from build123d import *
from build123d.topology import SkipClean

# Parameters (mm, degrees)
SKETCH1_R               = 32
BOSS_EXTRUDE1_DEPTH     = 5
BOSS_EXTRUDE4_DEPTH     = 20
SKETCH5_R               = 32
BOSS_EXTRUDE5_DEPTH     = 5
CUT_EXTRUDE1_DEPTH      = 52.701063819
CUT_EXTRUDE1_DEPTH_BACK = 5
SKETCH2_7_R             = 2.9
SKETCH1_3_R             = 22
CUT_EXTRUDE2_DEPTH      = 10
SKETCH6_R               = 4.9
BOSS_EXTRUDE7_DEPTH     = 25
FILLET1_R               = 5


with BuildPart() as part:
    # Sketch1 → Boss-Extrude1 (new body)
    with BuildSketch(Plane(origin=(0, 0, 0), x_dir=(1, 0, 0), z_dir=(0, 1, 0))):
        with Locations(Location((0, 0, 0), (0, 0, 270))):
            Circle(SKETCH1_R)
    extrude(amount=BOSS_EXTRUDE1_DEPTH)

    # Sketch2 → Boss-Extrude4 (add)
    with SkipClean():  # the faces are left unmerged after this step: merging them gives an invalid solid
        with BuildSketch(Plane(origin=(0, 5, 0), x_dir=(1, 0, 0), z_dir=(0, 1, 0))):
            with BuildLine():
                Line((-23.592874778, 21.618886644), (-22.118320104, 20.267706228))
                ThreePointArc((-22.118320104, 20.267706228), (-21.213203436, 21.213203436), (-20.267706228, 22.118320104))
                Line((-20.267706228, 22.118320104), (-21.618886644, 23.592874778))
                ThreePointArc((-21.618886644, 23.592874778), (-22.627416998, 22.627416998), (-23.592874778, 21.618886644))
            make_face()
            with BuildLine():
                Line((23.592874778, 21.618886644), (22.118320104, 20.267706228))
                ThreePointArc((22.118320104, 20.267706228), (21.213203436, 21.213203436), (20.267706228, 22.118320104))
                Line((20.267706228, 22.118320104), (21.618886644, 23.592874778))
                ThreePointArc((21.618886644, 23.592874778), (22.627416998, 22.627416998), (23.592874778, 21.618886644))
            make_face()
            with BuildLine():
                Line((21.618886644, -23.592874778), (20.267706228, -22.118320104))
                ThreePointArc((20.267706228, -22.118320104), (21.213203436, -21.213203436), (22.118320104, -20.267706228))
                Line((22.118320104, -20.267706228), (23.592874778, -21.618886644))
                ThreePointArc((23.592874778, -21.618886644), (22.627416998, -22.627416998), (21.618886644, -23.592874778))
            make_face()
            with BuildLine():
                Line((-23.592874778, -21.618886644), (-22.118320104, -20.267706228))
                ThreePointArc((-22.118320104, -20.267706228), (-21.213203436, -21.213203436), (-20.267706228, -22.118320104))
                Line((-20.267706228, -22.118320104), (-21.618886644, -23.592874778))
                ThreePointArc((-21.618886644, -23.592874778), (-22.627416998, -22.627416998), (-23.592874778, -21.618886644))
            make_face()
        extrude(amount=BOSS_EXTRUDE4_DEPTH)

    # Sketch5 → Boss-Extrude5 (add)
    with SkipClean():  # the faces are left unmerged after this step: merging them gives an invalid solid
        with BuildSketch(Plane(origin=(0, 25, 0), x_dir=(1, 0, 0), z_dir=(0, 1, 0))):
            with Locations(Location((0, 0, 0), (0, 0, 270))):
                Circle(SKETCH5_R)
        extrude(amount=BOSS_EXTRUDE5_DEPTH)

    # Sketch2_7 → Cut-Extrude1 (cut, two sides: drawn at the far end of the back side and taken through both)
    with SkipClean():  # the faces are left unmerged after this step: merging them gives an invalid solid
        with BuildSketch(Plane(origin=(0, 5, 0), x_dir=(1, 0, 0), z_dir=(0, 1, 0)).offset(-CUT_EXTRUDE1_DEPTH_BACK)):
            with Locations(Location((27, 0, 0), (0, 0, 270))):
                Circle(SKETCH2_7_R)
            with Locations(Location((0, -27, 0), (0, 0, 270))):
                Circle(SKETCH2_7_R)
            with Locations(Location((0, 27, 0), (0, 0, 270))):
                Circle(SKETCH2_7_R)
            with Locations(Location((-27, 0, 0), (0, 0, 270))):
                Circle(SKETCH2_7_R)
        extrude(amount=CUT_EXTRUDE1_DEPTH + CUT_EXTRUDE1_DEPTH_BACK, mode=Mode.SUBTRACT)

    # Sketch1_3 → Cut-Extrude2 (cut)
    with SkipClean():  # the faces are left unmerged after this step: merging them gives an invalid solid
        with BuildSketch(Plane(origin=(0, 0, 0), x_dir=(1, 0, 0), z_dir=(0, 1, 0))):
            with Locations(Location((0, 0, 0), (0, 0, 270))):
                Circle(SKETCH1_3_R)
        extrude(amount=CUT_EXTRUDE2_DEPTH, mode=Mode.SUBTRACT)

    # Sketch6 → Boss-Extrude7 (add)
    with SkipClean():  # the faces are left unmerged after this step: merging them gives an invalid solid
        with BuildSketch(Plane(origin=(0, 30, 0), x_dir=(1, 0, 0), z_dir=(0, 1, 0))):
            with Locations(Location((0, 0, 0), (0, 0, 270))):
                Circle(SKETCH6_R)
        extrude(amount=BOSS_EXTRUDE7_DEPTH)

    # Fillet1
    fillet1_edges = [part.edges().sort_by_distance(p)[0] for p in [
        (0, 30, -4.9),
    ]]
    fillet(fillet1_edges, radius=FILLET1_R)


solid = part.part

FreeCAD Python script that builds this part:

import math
import FreeCAD as App
import Part
import Sketcher
from FreeCAD import Vector
Q = App.Units.Quantity


def edges_at(feature, points):
    """Names of the edges that pass closest to the given points."""
    edges = feature.Shape.Edges
    near = lambda p: min(range(len(edges)), key=lambda i: edges[i].distToShape(Part.Vertex(*p))[0])
    return sorted({f"Edge{near(p) + 1}" for p in points})

doc = App.newDocument("Part")
body = doc.addObject("PartDesign::Body", "Body")

sketch1 = doc.addObject("Sketcher::SketchObject", "Sketch")
body.addObject(sketch1)
sketch1.AttachmentSupport = (doc.XZ_Plane, [""])
sketch1.MapMode = "FlatFace"
sketch1.addGeometry(Part.Circle(Vector(0, 0, 0), Vector(0, 0, 1), 32), False)
sketch1.addConstraint([
    Sketcher.Constraint("Coincident", 0, 3, -1, 1),
    Sketcher.Constraint("Diameter", 0, 64.0),
])
pad1 = doc.addObject("PartDesign::Pad", "Pad")
body.addObject(pad1)
pad1.Profile = sketch1
pad1.Length = 5
pad1.Reversed = True

sketch2 = doc.addObject("Sketcher::SketchObject", "Sketch001")
body.addObject(sketch2)
sketch2.AttachmentSupport = (doc.XZ_Plane, [""])
sketch2.MapMode = "FlatFace"
sketch2.AttachmentOffset = App.Placement(Vector(0, 0, -5), App.Rotation())
sketch2.addGeometry([
    Part.LineSegment(Vector(-23.6, -21.6, 0), Vector(-22.1, -20.3, 0)),
    Part.ArcOfCircle(Part.Circle(Vector(0, 0, 0), Vector(0, 0, 1), 30), math.radians(-137.5), math.radians(-132.5)),
    Part.LineSegment(Vector(-20.3, -22.1, 0), Vector(-21.6, -23.6, 0)),
    Part.ArcOfCircle(Part.Circle(Vector(0, 0, 0), Vector(0, 0, 1), 32), math.radians(-137.5), math.radians(-132.5)),
    Part.LineSegment(Vector(22.1, -20.3, 0), Vector(23.6, -21.6, 0)),
    Part.ArcOfCircle(Part.Circle(Vector(0, 0, 0), Vector(0, 0, 1), 32), math.radians(-47.5), math.radians(-42.5)),
    Part.LineSegment(Vector(21.6, -23.6, 0), Vector(20.3, -22.1, 0)),
    Part.ArcOfCircle(Part.Circle(Vector(0, 0, 0), Vector(0, 0, 1), 30), math.radians(-47.5), math.radians(-42.5)),
    Part.LineSegment(Vector(20.3, 22.1, 0), Vector(21.6, 23.6, 0)),
    Part.ArcOfCircle(Part.Circle(Vector(0, 0, 0), Vector(0, 0, 1), 32), math.radians(42.5), math.radians(47.5)),
    Part.LineSegment(Vector(23.6, 21.6, 0), Vector(22.1, 20.3, 0)),
    Part.ArcOfCircle(Part.Circle(Vector(0, 0, 0), Vector(0, 0, 1), 30), math.radians(42.5), math.radians(47.5)),
    Part.LineSegment(Vector(-22.1, 20.3, 0), Vector(-23.6, 21.6, 0)),
    Part.ArcOfCircle(Part.Circle(Vector(0, 0, 0), Vector(0, 0, 1), 32), math.radians(132.5), math.radians(137.5)),
    Part.LineSegment(Vector(-21.6, 23.6, 0), Vector(-20.3, 22.1, 0)),
    Part.ArcOfCircle(Part.Circle(Vector(0, 0, 0), Vector(0, 0, 1), 30), math.radians(132.5), math.radians(137.5)),
], False)
sketch2.addConstraint([
    Sketcher.Constraint("Coincident", 0, 2, 1, 1),
    Sketcher.Constraint("Coincident", 1, 2, 2, 1),
    Sketcher.Constraint("Coincident", 2, 2, 3, 2),
    Sketcher.Constraint("Coincident", 3, 1, 0, 1),
    Sketcher.Constraint("Coincident", 4, 2, 5, 2),
    Sketcher.Constraint("Coincident", 5, 1, 6, 1),
    Sketcher.Constraint("Coincident", 6, 2, 7, 1),
    Sketcher.Constraint("Coincident", 7, 2, 4, 1),
    Sketcher.Constraint("Coincident", 8, 2, 9, 2),
    Sketcher.Constraint("Coincident", 9, 1, 10, 1),
    Sketcher.Constraint("Coincident", 10, 2, 11, 1),
    Sketcher.Constraint("Coincident", 11, 2, 8, 1),
    Sketcher.Constraint("Coincident", 12, 2, 13, 2),
    Sketcher.Constraint("Coincident", 13, 1, 14, 1),
    Sketcher.Constraint("Coincident", 14, 2, 15, 1),
    Sketcher.Constraint("Coincident", 15, 2, 12, 1),
    Sketcher.Constraint("Coincident", 1, 3, -1, 1),
    Sketcher.Constraint("Coincident", 3, 3, -1, 1),
    Sketcher.Constraint("Coincident", 5, 3, -1, 1),
    Sketcher.Constraint("Coincident", 7, 3, -1, 1),
    Sketcher.Constraint("Coincident", 9, 3, -1, 1),
    Sketcher.Constraint("Coincident", 11, 3, -1, 1),
    Sketcher.Constraint("Coincident", 13, 3, -1, 1),
    Sketcher.Constraint("Coincident", 15, 3, -1, 1),
    Sketcher.Constraint("Equal", 3, 5),
    Sketcher.Constraint("Equal", 1, 7),
    Sketcher.Constraint("Equal", 5, 9),
    Sketcher.Constraint("Equal", 7, 11),
    Sketcher.Constraint("Equal", 9, 13),
    Sketcher.Constraint("Equal", 11, 15),
    Sketcher.Constraint("Perpendicular", 2, 4),
    Sketcher.Constraint("Perpendicular", 0, 6),
    Sketcher.Constraint("Perpendicular", 4, 8),
    Sketcher.Constraint("Perpendicular", 6, 10),
    Sketcher.Constraint("Perpendicular", 8, 12),
    Sketcher.Constraint("Perpendicular", 10, 14),
    Sketcher.Constraint("Horizontal", 3, 1, 4, 2),
    Sketcher.Constraint("Horizontal", 2, 2, 5, 1),
    Sketcher.Constraint("Horizontal", 1, 2, 6, 2),
    Sketcher.Constraint("Horizontal", 9, 1, 12, 2),
    Sketcher.Constraint("Horizontal", 8, 2, 13, 1),
    Sketcher.Constraint("Vertical", 5, 1, 8, 2),
    Sketcher.Constraint("Vertical", 4, 2, 9, 1),
    Sketcher.Constraint("Radius", 1, 29.999999),
    Sketcher.Constraint("Radius", 3, 32.0),
    Sketcher.Constraint("Angle", 0, Q("42.5 deg")),
    Sketcher.Constraint("DistanceX", 0, 2, -1, 1, 22.11832),
    Sketcher.Constraint("DistanceY", 1, 2, -1, 1, 22.11832),
])
pad2 = doc.addObject("PartDesign::Pad", "Pad001")
body.addObject(pad2)
pad2.Profile = sketch2
pad2.Length = 20
pad2.Reversed = True

sketch3 = doc.addObject("Sketcher::SketchObject", "Sketch002")
body.addObject(sketch3)
sketch3.AttachmentSupport = (doc.XZ_Plane, [""])
sketch3.MapMode = "FlatFace"
sketch3.AttachmentOffset = App.Placement(Vector(0, 0, -25), App.Rotation())
sketch3.addGeometry(Part.Circle(Vector(0, 0, 0), Vector(0, 0, 1), 32), False)
sketch3.addConstraint([
    Sketcher.Constraint("Coincident", 0, 3, -1, 1),
    Sketcher.Constraint("Diameter", 0, 64.0),
])
pad3 = doc.addObject("PartDesign::Pad", "Pad002")
body.addObject(pad3)
pad3.Profile = sketch3
pad3.Length = 5
pad3.Reversed = True

sketch4 = doc.addObject("Sketcher::SketchObject", "Sketch003")
body.addObject(sketch4)
sketch4.AttachmentSupport = (doc.XZ_Plane, [""])
sketch4.MapMode = "FlatFace"
sketch4.AttachmentOffset = App.Placement(Vector(0, 0, -5), App.Rotation())
sketch4.addGeometry([
    Part.Circle(Vector(27, 0, 0), Vector(0, 0, 1), 2.9),
    Part.Circle(Vector(0, 27, 0), Vector(0, 0, 1), 2.9),
    Part.Circle(Vector(0, -27, 0), Vector(0, 0, 1), 2.9),
    Part.Circle(Vector(-27, 0, 0), Vector(0, 0, 1), 2.9),
], False)
sketch4.addConstraint([
    Sketcher.Constraint("Equal", 0, 1),
    Sketcher.Constraint("Equal", 1, 2),
    Sketcher.Constraint("Equal", 2, 3),
    Sketcher.Constraint("Symmetric", 1, 3, 2, 3, -1, 1),
    Sketcher.Constraint("Symmetric", 0, 3, 3, 3, -1, 1),
    Sketcher.Constraint("PointOnObject", 0, 3, -1),
    Sketcher.Constraint("PointOnObject", 1, 3, -2),
    Sketcher.Constraint("Diameter", 0, 5.8),
    Sketcher.Constraint("DistanceX", -1, 1, 0, 3, 27.0),
    Sketcher.Constraint("DistanceY", -1, 1, 1, 3, 27.0),
])
pocket1 = doc.addObject("PartDesign::Pocket", "Pocket")
body.addObject(pocket1)
pocket1.Profile = sketch4
pocket1.Type = "ThroughAll"
pocket1.Midplane = True

sketch5 = doc.addObject("Sketcher::SketchObject", "Sketch004")
body.addObject(sketch5)
sketch5.AttachmentSupport = (doc.XZ_Plane, [""])
sketch5.MapMode = "FlatFace"
sketch5.addGeometry(Part.Circle(Vector(0, 0, 0), Vector(0, 0, 1), 22), False)
sketch5.addConstraint([
    Sketcher.Constraint("Coincident", 0, 3, -1, 1),
    Sketcher.Constraint("Diameter", 0, 44.0),
])
pocket2 = doc.addObject("PartDesign::Pocket", "Pocket001")
body.addObject(pocket2)
pocket2.Profile = sketch5
pocket2.Length = 10

sketch6 = doc.addObject("Sketcher::SketchObject", "Sketch005")
body.addObject(sketch6)
sketch6.AttachmentSupport = (doc.XZ_Plane, [""])
sketch6.MapMode = "FlatFace"
sketch6.AttachmentOffset = App.Placement(Vector(0, 0, -30), App.Rotation())
sketch6.addGeometry(Part.Circle(Vector(0, 0, 0), Vector(0, 0, 1), 4.9), False)
sketch6.addConstraint([
    Sketcher.Constraint("Coincident", 0, 3, -1, 1),
    Sketcher.Constraint("Diameter", 0, 9.8),
])
pad4 = doc.addObject("PartDesign::Pad", "Pad003")
body.addObject(pad4)
pad4.Profile = sketch6
pad4.Length = 25
pad4.Reversed = True
doc.recompute()

fillet = doc.addObject("PartDesign::Fillet", "Fillet")
body.addObject(fillet)
fillet.Base = (pad4, edges_at(pad4, [(0, 30, -4.9)]))
fillet.Radius = 5

doc.recompute()
